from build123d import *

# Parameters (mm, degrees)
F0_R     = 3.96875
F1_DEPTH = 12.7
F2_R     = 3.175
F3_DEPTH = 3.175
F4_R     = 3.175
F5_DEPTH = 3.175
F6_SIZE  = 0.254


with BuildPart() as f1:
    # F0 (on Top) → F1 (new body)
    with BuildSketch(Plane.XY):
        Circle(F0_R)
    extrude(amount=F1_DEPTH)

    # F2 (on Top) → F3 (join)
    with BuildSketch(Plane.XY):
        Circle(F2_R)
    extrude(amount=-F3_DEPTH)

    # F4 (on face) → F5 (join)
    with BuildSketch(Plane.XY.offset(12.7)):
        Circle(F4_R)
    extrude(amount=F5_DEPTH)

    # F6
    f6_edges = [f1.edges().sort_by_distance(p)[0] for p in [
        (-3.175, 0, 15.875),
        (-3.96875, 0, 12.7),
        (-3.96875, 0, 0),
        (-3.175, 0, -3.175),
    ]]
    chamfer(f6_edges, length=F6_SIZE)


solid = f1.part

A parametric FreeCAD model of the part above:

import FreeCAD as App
import Part
import Sketcher

V = App.Vector
Q = App.Units.Quantity


def edges_at(feature, points):
    """Names of the edges that pass closest to the given points."""
    edges = feature.Shape.Edges
    near = lambda p: min(range(len(edges)), key=lambda i: edges[i].distToShape(Part.Vertex(*p))[0])
    return sorted({f"Edge{near(p) + 1}" for p in points})

doc = App.newDocument("Part")
params = doc.addObject("Spreadsheet::Sheet", "Params")
for row, (alias, value) in enumerate([
    ("sketch1_diameter", "0.3125 in"),
    ("pad1_length", "0.5 in"),
    ("sketch2_diameter", "0.25 in"),
    ("pad2_length", "0.125 in"),
    ("sketch3_diameter", "0.25 in"),
    ("pad3_length", "0.125 in"),
    ("chamfer_size", "0.01 in"),
], start=1):
    params.set(f"A{row}", alias)
    params.set(f"B{row}", "=" + value)
    params.setAlias(f"B{row}", alias)

body = doc.addObject("PartDesign::Body", "Body")

# Sketch on XY plane
sketch1 = body.newObject("Sketcher::SketchObject", "Sketch")
sketch1.AttachmentSupport = (doc.getObject("XY_Plane"), [""])
sketch1.MapMode = "FlatFace"
sketch1.addGeometry(Part.Circle(V(0, 0, 0), V(0, 0, 1), 4), False)
sketch1.addConstraint([
    Sketcher.Constraint("Coincident", 0, 3, -1, 1),
    Sketcher.Constraint("Diameter", 0, Q("0.3125 in")),
])
sketch1.setExpression("Constraints[1]", "Params.sketch1_diameter")
pad1 = body.newObject("PartDesign::Pad", "Pad")
pad1.Profile = sketch1
pad1.setExpression("Length", "Params.pad1_length")

# Sketch on XY plane
sketch2 = body.newObject("Sketcher::SketchObject", "Sketch001")
sketch2.AttachmentSupport = (doc.getObject("XY_Plane"), [""])
sketch2.MapMode = "FlatFace"
sketch2.addGeometry(Part.Circle(V(0, 0, 0), V(0, 0, 1), 3.2), False)
sketch2.addConstraint([
    Sketcher.Constraint("Coincident", 0, 3, -1, 1),
    Sketcher.Constraint("Diameter", 0, Q("0.25 in")),
])
sketch2.setExpression("Constraints[1]", "Params.sketch2_diameter")
pad2 = body.newObject("PartDesign::Pad", "Pad001")
pad2.Profile = sketch2
pad2.setExpression("Length", "Params.pad2_length")
pad2.Reversed = True

# Sketch on XY plane
sketch3 = body.newObject("Sketcher::SketchObject", "Sketch002")
sketch3.AttachmentSupport = (doc.getObject("XY_Plane"), [""])
sketch3.MapMode = "FlatFace"
sketch3.AttachmentOffset = App.Placement(V(0, 0, 0.5 * 25.4), App.Rotation())
sketch3.addGeometry(Part.Circle(V(0, 0, 0), V(0, 0, 1), 3.2), False)
sketch3.addConstraint([
    Sketcher.Constraint("Coincident", 0, 3, -1, 1),
    Sketcher.Constraint("Diameter", 0, Q("0.25 in")),
])
sketch3.setExpression("Constraints[1]", "Params.sketch3_diameter")
pad3 = body.newObject("PartDesign::Pad", "Pad002")
pad3.Profile = sketch3
pad3.setExpression("Length", "Params.pad3_length")
doc.recompute()

chamfer = body.newObject("PartDesign::Chamfer", "Chamfer")
chamfer.Base = (pad3, edges_at(pad3, [
    (-3.175, 0, 15.875),
    (-3.969, 0, 12.7),
    (-3.969, 0, 0),
    (-3.175, 0, -3.175),
]))
chamfer.setExpression("Size", "Params.chamfer_size")

doc.recompute()
